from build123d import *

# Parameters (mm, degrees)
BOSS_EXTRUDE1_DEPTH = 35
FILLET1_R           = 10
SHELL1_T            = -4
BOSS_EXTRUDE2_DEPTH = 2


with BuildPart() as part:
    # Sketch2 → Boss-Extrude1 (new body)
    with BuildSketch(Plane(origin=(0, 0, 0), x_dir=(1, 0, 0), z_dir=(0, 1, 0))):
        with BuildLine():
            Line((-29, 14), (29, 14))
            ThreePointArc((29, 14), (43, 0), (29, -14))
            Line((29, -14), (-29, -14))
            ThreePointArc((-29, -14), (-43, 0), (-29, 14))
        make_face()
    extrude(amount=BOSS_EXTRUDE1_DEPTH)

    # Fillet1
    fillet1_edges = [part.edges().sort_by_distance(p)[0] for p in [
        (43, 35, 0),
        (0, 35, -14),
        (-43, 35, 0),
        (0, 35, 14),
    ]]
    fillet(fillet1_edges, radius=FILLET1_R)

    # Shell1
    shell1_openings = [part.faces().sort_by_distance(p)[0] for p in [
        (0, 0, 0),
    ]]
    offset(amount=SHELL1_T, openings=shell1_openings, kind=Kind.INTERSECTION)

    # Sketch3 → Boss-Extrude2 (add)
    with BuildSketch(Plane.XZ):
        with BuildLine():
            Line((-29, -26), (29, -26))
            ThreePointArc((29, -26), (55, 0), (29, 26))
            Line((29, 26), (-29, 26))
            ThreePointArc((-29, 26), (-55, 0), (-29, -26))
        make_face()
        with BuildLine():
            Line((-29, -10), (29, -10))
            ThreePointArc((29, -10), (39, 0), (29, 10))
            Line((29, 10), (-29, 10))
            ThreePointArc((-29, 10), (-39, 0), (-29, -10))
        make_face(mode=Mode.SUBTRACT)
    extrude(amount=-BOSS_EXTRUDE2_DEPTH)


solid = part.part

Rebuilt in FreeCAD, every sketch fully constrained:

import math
import FreeCAD as App
import Part
import Sketcher

V = App.Vector
Q = App.Units.Quantity


def edges_at(feature, points):
    """Names of the edges that pass closest to the given points."""
    edges = feature.Shape.Edges
    near = lambda p: min(range(len(edges)), key=lambda i: edges[i].distToShape(Part.Vertex(*p))[0])
    return sorted({f"Edge{near(p) + 1}" for p in points})


def faces_at(feature, points):
    """Names of the faces that lie closest to the given points."""
    faces = feature.Shape.Faces
    near = lambda p: min(range(len(faces)), key=lambda i: faces[i].distToShape(Part.Vertex(*p))[0])
    return sorted({f"Face{near(p) + 1}" for p in points})

doc = App.newDocument("Part")
body = doc.addObject("PartDesign::Body", "Body")

# Sketch on XZ plane
sketch1 = body.newObject("Sketcher::SketchObject", "Sketch")
sketch1.AttachmentSupport = (doc.getObject("XZ_Plane"), [""])
sketch1.MapMode = "FlatFace"
sketch1.addGeometry([
    Part.LineSegment(V(29, -14, 0), V(-29, -14, 0)),
    Part.ArcOfCircle(Part.Circle(V(-29, 0, 0), V(0, 0, 1), 14), math.radians(90), math.radians(270)),
    Part.LineSegment(V(-29, 14, 0), V(29, 14, 0)),
    Part.ArcOfCircle(Part.Circle(V(29, 0, 0), V(0, 0, 1), 14), math.radians(-90), math.radians(90)),
], False)
sketch1.addConstraint([
    Sketcher.Constraint("Tangent", 0, 2, 1, 2),
    Sketcher.Constraint("Tangent", 1, 1, 2, 1),
    Sketcher.Constraint("Tangent", 2, 2, 3, 2),
    Sketcher.Constraint("Tangent", 3, 1, 0, 1),
    Sketcher.Constraint("Horizontal", 0),
    Sketcher.Constraint("Horizontal", 2),
    Sketcher.Constraint("Symmetric", 1, 3, 3, 3, -1, 1),
    Sketcher.Constraint("Radius", 1, Q("14 mm")),
    Sketcher.Constraint("DistanceX", 0, 2, 0, 1, Q("58 mm")),
])
pad1 = body.newObject("PartDesign::Pad", "Pad")
pad1.Profile = sketch1
pad1.Length = 35
pad1.Reversed = True
doc.recompute()

fillet = body.newObject("PartDesign::Fillet", "Fillet")
fillet.Base = (pad1, edges_at(pad1, [
    (43, 35, 0),
    (0, 35, -14),
    (-43, 35, 0),
    (0, 35, 14),
]))
fillet.Radius = 10
doc.recompute()

thickness = body.newObject("PartDesign::Thickness", "Thickness")
thickness.Base = (fillet, faces_at(fillet, [(0, 0, 0)]))
thickness.Value = 4
thickness.Reversed = True
thickness.Join = "Intersection"

# Sketch on XZ plane
sketch2 = body.newObject("Sketcher::SketchObject", "Sketch001")
sketch2.AttachmentSupport = (doc.getObject("XZ_Plane"), [""])
sketch2.MapMode = "FlatFace"
sketch2.addGeometry([
    Part.LineSegment(V(-29, -26, 0), V(29, -26, 0)),  # 0
    Part.ArcOfCircle(Part.Circle(V(29, 0, 0), V(0, 0, 1), 26), math.radians(-90), math.radians(90)),  # 1
    Part.LineSegment(V(29, 26, 0), V(-29, 26, 0)),  # 2
    Part.ArcOfCircle(Part.Circle(V(-29, 0, 0), V(0, 0, 1), 26), math.radians(90), math.radians(270)),  # 3
    Part.LineSegment(V(29, -10, 0), V(-29, -10, 0)),  # 4
    Part.ArcOfCircle(Part.Circle(V(-29, 0, 0), V(0, 0, 1), 10), math.radians(90), math.radians(270)),  # 5
    Part.LineSegment(V(-29, 10, 0), V(29, 10, 0)),  # 6
    Part.ArcOfCircle(Part.Circle(V(29, 0, 0), V(0, 0, 1), 10), math.radians(-90), math.radians(90)),  # 7
], False)
sketch2.addConstraint([
    Sketcher.Constraint("Tangent", 0, 2, 1, 1),
    Sketcher.Constraint("Tangent", 1, 2, 2, 1),
    Sketcher.Constraint("Tangent", 2, 2, 3, 1),
    Sketcher.Constraint("Tangent", 3, 2, 0, 1),
    Sketcher.Constraint("Tangent", 4, 2, 5, 2),
    Sketcher.Constraint("Tangent", 5, 1, 6, 1),
    Sketcher.Constraint("Tangent", 6, 2, 7, 2),
    Sketcher.Constraint("Tangent", 7, 1, 4, 1),
    Sketcher.Constraint("Horizontal", 0),
    Sketcher.Constraint("Horizontal", 2),
    Sketcher.Constraint("Horizontal", 4),
    Sketcher.Constraint("Horizontal", 6),
    Sketcher.Constraint("Coincident", 5, 3, 3, 3),
    Sketcher.Constraint("Symmetric", 1, 3, 3, 3, -1, 1),
    Sketcher.Constraint("Vertical", 7, 3, 0, 2),
    Sketcher.Constraint("Radius", 1, Q("26 mm")),
    Sketcher.Constraint("Radius", 5, Q("10 mm")),
    Sketcher.Constraint("DistanceX", 0, 1, 0, 2, Q("58 mm")),
])
pad2 = body.newObject("PartDesign::Pad", "Pad001")
pad2.Profile = sketch2
pad2.Length = 2
pad2.Reversed = True

doc.recompute()
